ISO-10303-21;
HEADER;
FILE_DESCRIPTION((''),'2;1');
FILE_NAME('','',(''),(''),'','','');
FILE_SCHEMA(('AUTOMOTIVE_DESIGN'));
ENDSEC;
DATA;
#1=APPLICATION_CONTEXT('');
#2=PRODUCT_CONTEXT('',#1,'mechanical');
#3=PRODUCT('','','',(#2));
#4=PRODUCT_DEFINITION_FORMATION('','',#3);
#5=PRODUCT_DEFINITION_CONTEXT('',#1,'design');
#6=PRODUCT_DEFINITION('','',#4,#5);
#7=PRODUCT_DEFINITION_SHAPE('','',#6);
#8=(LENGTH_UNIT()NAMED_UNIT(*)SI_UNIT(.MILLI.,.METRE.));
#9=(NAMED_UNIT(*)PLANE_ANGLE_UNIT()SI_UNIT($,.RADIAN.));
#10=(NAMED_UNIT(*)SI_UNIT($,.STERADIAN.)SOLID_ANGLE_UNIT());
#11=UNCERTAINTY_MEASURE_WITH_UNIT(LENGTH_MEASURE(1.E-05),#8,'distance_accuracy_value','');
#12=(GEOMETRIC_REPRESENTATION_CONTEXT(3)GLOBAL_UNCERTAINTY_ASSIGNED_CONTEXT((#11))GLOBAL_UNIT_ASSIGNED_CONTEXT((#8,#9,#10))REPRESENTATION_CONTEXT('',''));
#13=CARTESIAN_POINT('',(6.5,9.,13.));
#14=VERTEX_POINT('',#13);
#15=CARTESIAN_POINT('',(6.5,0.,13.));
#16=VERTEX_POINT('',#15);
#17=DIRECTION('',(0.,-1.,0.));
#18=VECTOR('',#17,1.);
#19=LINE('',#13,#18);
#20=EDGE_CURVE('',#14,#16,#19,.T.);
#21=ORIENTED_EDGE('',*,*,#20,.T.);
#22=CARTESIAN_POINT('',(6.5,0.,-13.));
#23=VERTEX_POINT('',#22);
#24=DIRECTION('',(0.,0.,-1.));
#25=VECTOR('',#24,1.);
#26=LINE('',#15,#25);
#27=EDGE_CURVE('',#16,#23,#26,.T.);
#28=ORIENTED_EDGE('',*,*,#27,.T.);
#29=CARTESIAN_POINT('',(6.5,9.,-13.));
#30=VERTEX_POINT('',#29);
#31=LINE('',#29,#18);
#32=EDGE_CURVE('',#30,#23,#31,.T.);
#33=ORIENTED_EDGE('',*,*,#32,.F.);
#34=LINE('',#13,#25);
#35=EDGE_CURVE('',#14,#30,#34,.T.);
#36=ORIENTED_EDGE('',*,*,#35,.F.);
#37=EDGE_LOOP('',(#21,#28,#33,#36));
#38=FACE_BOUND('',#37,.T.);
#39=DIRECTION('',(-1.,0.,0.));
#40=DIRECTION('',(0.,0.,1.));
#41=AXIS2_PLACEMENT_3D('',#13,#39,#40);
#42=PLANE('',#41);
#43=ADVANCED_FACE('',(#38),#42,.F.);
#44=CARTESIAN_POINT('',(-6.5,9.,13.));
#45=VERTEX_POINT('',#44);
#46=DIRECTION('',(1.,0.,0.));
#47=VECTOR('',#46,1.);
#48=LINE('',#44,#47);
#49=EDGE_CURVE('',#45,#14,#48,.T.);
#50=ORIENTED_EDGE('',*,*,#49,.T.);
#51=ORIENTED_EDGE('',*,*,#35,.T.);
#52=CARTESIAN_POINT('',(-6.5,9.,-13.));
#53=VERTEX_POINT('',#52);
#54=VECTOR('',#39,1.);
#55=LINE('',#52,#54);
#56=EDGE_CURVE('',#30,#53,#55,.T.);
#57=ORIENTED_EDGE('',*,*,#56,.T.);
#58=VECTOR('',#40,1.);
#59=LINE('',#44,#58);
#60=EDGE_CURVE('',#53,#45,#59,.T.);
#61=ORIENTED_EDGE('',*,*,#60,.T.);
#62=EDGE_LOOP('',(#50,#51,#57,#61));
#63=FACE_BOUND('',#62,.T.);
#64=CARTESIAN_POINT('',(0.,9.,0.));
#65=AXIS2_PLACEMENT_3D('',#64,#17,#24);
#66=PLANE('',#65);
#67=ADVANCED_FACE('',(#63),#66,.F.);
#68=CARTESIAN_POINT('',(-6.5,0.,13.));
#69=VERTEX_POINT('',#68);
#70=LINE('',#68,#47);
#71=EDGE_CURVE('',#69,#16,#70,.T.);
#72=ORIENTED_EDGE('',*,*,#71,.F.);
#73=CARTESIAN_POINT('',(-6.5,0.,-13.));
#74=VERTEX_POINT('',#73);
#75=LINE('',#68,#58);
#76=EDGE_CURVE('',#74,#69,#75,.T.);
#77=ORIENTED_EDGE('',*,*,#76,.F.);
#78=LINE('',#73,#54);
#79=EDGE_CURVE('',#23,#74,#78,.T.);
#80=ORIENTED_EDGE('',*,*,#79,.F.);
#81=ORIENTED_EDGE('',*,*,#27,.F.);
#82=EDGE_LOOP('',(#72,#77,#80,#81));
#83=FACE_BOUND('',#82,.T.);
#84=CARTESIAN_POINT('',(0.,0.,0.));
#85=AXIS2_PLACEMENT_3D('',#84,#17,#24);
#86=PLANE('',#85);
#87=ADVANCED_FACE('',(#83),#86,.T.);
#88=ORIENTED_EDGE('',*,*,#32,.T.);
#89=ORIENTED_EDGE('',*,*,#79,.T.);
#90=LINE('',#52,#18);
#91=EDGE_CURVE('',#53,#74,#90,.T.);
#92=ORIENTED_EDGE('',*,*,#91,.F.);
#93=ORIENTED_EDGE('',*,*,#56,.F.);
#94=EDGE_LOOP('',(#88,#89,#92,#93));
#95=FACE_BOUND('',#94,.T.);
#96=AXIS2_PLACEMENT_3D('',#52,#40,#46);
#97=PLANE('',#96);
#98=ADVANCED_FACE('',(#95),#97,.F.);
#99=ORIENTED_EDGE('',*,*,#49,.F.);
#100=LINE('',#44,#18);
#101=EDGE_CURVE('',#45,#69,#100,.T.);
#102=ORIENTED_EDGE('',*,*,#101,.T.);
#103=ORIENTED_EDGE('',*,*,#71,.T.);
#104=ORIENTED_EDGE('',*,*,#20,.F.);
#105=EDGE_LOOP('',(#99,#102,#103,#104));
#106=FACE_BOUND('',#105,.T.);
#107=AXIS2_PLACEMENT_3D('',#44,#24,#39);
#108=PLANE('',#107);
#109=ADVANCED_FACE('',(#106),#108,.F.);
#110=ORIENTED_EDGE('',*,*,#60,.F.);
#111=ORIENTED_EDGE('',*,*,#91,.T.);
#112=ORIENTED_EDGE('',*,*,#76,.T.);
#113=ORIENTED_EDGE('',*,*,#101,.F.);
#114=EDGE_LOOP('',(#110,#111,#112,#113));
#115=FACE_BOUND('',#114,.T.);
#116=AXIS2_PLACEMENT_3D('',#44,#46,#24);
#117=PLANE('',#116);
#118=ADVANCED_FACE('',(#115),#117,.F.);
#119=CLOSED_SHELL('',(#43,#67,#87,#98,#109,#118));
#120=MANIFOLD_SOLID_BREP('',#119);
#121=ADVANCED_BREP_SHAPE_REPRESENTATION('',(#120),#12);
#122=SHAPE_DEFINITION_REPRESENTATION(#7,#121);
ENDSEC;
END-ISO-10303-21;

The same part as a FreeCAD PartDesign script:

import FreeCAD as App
import Part
import Sketcher
Q = App.Units.Quantity

doc = App.newDocument("Part")
params = doc.addObject("Spreadsheet::Sheet", "Params")
for row, (alias, value) in enumerate([
    ("sketch1_width", "13 mm"),
    ("sketch1_height", "26 mm"),
    ("pad1_length", "9 mm"),
], start=1):
    params.set(f"A{row}", alias)
    params.set(f"B{row}", "=" + value)
    params.setAlias(f"B{row}", alias)

body = doc.addObject("PartDesign::Body", "Body")

sketch1 = body.newObject("Sketcher::SketchObject", "Sketch")
sketch1.AttachmentSupport = (doc.getObject("XZ_Plane"), [""])
sketch1.MapMode = "FlatFace"
sketch1.addGeometry(Part.LineSegment(App.Vector(-6, -13, 0), App.Vector(-6, 13, 0)), False)
sketch1.addGeometry(Part.LineSegment(App.Vector(-6, 13, 0), App.Vector(6, 13, 0)), False)
sketch1.addGeometry(Part.LineSegment(App.Vector(6, 13, 0), App.Vector(6, -13, 0)), False)
sketch1.addGeometry(Part.LineSegment(App.Vector(6, -13, 0), App.Vector(-6, -13, 0)), False)
sketch1.addConstraint(Sketcher.Constraint("Coincident", 0, 2, 1, 1))
sketch1.addConstraint(Sketcher.Constraint("Coincident", 1, 2, 2, 1))
sketch1.addConstraint(Sketcher.Constraint("Coincident", 2, 2, 3, 1))
sketch1.addConstraint(Sketcher.Constraint("Coincident", 3, 2, 0, 1))
sketch1.addConstraint(Sketcher.Constraint("Vertical", 0))
sketch1.addConstraint(Sketcher.Constraint("Horizontal", 1))
sketch1.addConstraint(Sketcher.Constraint("Vertical", 2))
sketch1.addConstraint(Sketcher.Constraint("Horizontal", 3))
sketch1.addConstraint(Sketcher.Constraint("Symmetric", 0, 2, 2, 2, -1, 1))
sketch1.addConstraint(Sketcher.Constraint("DistanceX", 1, 1, 1, 2, Q("13 mm")))
sketch1.addConstraint(Sketcher.Constraint("DistanceY", 0, 1, 0, 2, Q("26 mm")))
sketch1.setExpression("Constraints[9]", "Params.sketch1_width")
sketch1.setExpression("Constraints[10]", "Params.sketch1_height")
pad1 = body.newObject("PartDesign::Pad", "Pad")
pad1.Profile = sketch1
pad1.setExpression("Length", "Params.pad1_length")
pad1.Reversed = True

doc.recompute()
